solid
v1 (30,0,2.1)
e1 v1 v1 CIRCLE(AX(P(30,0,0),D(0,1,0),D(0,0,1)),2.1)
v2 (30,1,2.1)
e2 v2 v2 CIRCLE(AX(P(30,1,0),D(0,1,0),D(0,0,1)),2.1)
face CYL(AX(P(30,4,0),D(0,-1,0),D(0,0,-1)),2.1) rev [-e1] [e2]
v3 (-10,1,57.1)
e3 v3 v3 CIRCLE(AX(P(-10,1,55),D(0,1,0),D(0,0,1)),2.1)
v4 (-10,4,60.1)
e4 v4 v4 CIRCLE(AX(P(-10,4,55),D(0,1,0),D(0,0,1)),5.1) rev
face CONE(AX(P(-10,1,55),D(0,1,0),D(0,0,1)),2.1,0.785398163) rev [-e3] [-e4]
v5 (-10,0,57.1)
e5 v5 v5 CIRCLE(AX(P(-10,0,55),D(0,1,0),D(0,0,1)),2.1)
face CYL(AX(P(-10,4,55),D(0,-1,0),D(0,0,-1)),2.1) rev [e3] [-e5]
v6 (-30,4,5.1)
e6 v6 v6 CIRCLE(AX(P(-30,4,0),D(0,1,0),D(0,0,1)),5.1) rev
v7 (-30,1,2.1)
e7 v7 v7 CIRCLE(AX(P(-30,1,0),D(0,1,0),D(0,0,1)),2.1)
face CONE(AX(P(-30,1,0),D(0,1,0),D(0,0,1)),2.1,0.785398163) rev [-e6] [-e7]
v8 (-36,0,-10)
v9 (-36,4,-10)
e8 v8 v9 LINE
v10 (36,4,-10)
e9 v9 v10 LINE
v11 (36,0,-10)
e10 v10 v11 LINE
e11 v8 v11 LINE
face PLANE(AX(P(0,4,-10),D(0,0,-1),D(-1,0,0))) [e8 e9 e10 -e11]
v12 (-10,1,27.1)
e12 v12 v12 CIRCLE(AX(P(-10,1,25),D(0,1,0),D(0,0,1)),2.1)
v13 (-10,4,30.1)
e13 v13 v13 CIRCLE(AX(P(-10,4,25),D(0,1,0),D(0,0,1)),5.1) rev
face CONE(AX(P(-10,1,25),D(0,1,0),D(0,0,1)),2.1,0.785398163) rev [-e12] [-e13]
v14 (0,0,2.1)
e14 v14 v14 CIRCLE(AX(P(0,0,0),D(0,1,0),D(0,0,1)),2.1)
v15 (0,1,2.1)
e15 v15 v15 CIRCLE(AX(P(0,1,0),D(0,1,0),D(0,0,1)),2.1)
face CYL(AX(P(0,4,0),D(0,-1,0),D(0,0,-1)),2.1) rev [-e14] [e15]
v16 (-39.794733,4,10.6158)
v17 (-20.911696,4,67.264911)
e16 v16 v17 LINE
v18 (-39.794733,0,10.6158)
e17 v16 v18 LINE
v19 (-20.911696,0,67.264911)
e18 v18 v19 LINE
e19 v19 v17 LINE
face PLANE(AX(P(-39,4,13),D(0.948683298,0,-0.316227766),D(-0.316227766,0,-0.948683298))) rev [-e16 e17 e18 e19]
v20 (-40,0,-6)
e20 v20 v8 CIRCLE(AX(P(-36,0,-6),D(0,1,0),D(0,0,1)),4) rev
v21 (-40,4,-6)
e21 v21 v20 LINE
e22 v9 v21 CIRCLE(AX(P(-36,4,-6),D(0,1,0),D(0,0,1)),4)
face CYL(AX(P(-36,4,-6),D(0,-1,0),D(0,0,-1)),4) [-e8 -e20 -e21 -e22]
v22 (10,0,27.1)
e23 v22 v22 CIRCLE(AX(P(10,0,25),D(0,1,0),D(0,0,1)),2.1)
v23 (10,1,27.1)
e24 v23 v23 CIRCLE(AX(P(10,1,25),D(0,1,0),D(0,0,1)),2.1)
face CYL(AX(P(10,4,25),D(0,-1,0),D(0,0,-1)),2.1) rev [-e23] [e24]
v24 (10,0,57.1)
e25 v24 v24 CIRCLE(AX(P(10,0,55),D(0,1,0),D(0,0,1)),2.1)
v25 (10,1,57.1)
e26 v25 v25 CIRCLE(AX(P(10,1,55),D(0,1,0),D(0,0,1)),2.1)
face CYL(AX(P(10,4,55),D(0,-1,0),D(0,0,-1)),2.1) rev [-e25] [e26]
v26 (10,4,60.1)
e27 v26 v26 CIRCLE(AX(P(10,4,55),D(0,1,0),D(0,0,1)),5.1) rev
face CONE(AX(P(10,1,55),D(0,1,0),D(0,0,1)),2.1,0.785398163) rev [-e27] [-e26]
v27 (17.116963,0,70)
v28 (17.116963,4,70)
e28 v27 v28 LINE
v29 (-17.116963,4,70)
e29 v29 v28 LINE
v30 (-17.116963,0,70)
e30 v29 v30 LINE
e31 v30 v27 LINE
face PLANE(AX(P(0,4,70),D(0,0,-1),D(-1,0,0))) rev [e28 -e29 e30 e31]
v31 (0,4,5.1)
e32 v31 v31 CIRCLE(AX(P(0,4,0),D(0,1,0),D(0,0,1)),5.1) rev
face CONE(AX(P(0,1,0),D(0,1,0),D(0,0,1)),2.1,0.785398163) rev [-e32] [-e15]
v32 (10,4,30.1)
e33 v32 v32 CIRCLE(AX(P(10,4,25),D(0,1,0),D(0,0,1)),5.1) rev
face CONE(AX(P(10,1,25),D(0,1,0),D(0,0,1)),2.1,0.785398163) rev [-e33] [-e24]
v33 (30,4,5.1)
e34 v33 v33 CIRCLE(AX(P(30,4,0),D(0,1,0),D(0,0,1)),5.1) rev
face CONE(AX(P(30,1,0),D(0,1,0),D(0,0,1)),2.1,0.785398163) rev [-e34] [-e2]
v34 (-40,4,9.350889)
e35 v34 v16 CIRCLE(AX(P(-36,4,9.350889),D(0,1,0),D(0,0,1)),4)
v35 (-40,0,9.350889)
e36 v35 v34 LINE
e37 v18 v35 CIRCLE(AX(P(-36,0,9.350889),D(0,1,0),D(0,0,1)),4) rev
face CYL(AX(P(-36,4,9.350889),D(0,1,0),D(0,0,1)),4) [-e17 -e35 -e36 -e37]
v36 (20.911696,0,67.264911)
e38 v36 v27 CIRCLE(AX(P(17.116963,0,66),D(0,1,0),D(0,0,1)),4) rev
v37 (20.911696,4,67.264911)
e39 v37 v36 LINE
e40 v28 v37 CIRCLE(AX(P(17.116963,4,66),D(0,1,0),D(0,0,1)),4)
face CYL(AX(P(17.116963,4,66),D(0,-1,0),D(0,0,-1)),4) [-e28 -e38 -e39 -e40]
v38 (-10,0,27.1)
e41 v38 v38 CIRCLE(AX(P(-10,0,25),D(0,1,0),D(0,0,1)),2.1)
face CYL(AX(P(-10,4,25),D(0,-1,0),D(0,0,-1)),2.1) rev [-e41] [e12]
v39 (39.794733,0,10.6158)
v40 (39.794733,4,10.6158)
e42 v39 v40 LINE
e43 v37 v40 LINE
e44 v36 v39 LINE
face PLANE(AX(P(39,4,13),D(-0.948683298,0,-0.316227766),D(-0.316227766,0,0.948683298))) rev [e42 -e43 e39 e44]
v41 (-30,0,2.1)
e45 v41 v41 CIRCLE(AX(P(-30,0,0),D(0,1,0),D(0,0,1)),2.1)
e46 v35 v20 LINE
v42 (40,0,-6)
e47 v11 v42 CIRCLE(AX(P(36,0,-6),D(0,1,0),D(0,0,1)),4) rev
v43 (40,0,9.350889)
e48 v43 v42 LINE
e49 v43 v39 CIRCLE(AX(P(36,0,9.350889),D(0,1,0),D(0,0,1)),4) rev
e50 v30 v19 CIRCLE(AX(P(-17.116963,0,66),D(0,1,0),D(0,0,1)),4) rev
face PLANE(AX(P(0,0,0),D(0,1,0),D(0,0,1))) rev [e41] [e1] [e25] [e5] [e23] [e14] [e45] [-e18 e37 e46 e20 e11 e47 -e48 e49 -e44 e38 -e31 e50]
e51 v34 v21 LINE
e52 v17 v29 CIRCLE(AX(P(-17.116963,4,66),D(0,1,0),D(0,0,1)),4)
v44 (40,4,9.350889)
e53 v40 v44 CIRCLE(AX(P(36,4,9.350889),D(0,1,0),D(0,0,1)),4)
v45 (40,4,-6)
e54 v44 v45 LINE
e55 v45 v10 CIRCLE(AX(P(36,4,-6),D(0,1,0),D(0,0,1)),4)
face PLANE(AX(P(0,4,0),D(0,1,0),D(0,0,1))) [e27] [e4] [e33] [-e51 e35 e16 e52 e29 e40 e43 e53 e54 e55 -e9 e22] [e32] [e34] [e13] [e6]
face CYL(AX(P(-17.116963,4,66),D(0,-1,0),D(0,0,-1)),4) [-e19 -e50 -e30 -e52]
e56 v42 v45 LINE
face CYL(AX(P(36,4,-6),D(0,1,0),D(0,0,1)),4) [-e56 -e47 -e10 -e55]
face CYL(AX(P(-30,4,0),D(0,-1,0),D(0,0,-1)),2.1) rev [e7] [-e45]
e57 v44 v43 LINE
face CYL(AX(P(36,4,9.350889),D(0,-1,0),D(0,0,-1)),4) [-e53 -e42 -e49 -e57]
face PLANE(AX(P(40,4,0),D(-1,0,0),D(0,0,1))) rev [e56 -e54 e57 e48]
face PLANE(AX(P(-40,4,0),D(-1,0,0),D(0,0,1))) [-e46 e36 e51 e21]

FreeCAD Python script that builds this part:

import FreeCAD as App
import Part
import Sketcher
from FreeCAD import Vector
Q = App.Units.Quantity


def edges_at(feature, points):
    """Names of the edges that pass closest to the given points."""
    edges = feature.Shape.Edges
    near = lambda p: min(range(len(edges)), key=lambda i: edges[i].distToShape(Part.Vertex(*p))[0])
    return sorted({f"Edge{near(p) + 1}" for p in points})


def add_polygon(sketch, points):
    """Adds a closed chain of lines whose ends are joined by coincident constraints."""
    first, n = sketch.GeometryCount, len(points)
    for a, b in zip(points, points[1:] + points[:1]):
        sketch.addGeometry(Part.LineSegment(App.Vector(*a, 0), App.Vector(*b, 0)), False)
    for i in range(n):
        sketch.addConstraint(Sketcher.Constraint("Coincident", first + i, 2, first + (i + 1) % n, 1))

doc = App.newDocument("Part")
body = doc.addObject("PartDesign::Body", "Body")

# Sketch on XZ plane
sketch1 = body.newObject("Sketcher::SketchObject", "Sketch")
sketch1.AttachmentSupport = (doc.getObject("XZ_Plane"), [""])
sketch1.MapMode = "FlatFace"
add_polygon(sketch1, [(-20, 70), (20, 70), (40, 10), (40, -10), (-40, -10), (-40, 10)])  # lines 0-5
sketch1.addGeometry(Part.Circle(Vector(-10, 55, 0), Vector(0, 0, 1), 2.1), False)  # 6
sketch1.addGeometry(Part.Circle(Vector(10, 55, 0), Vector(0, 0, 1), 2.1), False)  # 7
sketch1.addGeometry(Part.Circle(Vector(-10, 25, 0), Vector(0, 0, 1), 2.1), False)  # 8
sketch1.addGeometry(Part.Circle(Vector(-30, 0, 0), Vector(0, 0, 1), 2.1), False)  # 9
sketch1.addGeometry(Part.Circle(Vector(10, 25, 0), Vector(0, 0, 1), 2.1), False)  # 10
sketch1.addGeometry(Part.Circle(Vector(0, 0, 0), Vector(0, 0, 1), 2.1), False)  # 11
sketch1.addGeometry(Part.Circle(Vector(30, 0, 0), Vector(0, 0, 1), 2.1), False)  # 12
sketch1.addConstraint([
    Sketcher.Constraint("Horizontal", 0),
    Sketcher.Constraint("Vertical", 2),
    Sketcher.Constraint("Horizontal", 3),
    Sketcher.Constraint("Vertical", 4),
    Sketcher.Constraint("Coincident", 11, 3, -1, 1),
    Sketcher.Constraint("Equal", 6, 7),
    Sketcher.Constraint("Equal", 7, 8),
    Sketcher.Constraint("Equal", 8, 9),
    Sketcher.Constraint("Equal", 9, 10),
    Sketcher.Constraint("Equal", 10, 11),
    Sketcher.Constraint("Equal", 11, 12),
    Sketcher.Constraint("Symmetric", 9, 3, 12, 3, -1, 1),
    Sketcher.Constraint("Symmetric", 1, 2, 3, 2, -1, 1),
    Sketcher.Constraint("Symmetric", 6, 3, 7, 3, -2),
    Sketcher.Constraint("Symmetric", 8, 3, 10, 3, -2),
    Sketcher.Constraint("PointOnObject", 9, 3, -1),
    Sketcher.Constraint("Horizontal", 1, 2, 4, 2),
    Sketcher.Constraint("Vertical", 6, 3, 8, 3),
    Sketcher.Constraint("Equal", 1, 5),
    Sketcher.Constraint("Diameter", 6, Q("4.2 mm")),
    Sketcher.Constraint("DistanceX", 0, 1, 0, 2, Q("40 mm")),
    Sketcher.Constraint("DistanceX", 3, 2, 3, 1, Q("80 mm")),
    Sketcher.Constraint("DistanceY", 2, 2, 2, 1, Q("20 mm")),
    Sketcher.Constraint("DistanceX", 6, 3, -1, 1, Q("10 mm")),
    Sketcher.Constraint("DistanceY", -1, 1, 6, 3, Q("55 mm")),
    Sketcher.Constraint("DistanceY", -1, 1, 8, 3, Q("25 mm")),
    Sketcher.Constraint("DistanceX", 9, 3, -1, 1, Q("30 mm")),
    Sketcher.Constraint("DistanceY", -1, 1, 0, 2, Q("70 mm")),
])
pad1 = body.newObject("PartDesign::Pad", "Pad")
pad1.Profile = sketch1
pad1.Length = 4
pad1.Reversed = True
doc.recompute()

chamfer = body.newObject("PartDesign::Chamfer", "Chamfer")
chamfer.Base = (pad1, edges_at(pad1, [
    (-12.1, 4, 55),
    (7.9, 4, 55),
    (7.9, 4, 25),
    (-12.1, 4, 25),
    (-2.1, 4, 0),
    (27.9, 4, 0),
    (-32.1, 4, 0),
]))
chamfer.Size = 3
doc.recompute()

fillet = body.newObject("PartDesign::Fillet", "Fillet")
fillet.Base = (chamfer, edges_at(chamfer, [
    (20, 2, 70),
    (-20, 2, 70),
    (-40, 2, 10),
    (-40, 2, -10),
    (40, 2, -10),
    (40, 2, 10),
]))
fillet.Radius = 4

doc.recompute()
